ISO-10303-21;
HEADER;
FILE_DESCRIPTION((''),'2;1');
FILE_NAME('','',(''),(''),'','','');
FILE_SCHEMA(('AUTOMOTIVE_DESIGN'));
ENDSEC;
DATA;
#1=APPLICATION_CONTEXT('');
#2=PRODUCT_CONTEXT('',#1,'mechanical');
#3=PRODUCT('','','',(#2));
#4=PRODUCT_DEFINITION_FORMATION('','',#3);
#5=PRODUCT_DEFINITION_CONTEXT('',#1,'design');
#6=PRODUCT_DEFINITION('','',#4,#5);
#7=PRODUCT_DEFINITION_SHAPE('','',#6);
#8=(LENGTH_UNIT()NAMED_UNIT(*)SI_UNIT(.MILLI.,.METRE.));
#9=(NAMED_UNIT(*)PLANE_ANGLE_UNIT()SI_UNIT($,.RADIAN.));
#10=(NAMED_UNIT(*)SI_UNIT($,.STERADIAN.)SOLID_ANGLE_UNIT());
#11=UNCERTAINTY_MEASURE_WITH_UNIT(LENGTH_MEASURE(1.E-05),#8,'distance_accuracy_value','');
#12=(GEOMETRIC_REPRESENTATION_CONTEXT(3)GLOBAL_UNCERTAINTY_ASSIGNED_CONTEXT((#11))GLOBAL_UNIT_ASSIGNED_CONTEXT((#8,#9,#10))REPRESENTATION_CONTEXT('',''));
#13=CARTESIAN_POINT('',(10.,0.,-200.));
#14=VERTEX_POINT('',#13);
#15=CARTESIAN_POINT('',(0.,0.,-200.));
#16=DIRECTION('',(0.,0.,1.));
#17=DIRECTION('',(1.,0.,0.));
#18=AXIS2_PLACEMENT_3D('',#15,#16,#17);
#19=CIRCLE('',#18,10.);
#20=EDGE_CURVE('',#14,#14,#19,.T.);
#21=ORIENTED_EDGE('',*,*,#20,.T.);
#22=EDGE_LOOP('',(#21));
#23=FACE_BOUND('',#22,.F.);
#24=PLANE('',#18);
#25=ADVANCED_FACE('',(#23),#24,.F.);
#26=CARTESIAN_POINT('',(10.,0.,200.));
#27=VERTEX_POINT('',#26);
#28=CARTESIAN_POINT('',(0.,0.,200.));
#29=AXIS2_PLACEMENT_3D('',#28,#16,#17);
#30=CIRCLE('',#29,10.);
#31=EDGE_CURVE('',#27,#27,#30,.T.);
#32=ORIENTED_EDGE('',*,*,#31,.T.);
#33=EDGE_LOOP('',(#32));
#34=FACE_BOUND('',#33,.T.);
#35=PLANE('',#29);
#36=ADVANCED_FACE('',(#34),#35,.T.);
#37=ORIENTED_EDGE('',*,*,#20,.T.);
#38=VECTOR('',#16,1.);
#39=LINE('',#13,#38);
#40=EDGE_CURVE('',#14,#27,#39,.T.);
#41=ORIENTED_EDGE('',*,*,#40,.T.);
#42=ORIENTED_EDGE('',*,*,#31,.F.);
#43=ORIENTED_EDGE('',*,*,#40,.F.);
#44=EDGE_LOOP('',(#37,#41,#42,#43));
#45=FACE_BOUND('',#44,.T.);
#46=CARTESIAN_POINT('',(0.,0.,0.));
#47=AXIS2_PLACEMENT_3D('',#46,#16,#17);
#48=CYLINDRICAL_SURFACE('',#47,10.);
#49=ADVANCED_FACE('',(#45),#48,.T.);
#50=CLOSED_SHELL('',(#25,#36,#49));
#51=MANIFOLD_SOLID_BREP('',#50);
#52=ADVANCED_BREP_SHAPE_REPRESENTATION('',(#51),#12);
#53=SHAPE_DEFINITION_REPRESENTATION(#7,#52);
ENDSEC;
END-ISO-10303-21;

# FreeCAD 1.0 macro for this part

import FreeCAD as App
import Part
import Sketcher

doc = App.newDocument("Part")
body = doc.addObject("PartDesign::Body", "Body")

# Sketch on XY plane
sketch1 = body.newObject("Sketcher::SketchObject", "Sketch")
sketch1.AttachmentSupport = (doc.getObject("XY_Plane"), [""])
sketch1.MapMode = "FlatFace"
sketch1.addGeometry(Part.Circle(App.Vector(0, 0, 0), App.Vector(0, 0, 1), 10), False)
sketch1.addConstraint(Sketcher.Constraint("Coincident", 0, 3, -1, 1))
sketch1.addConstraint(Sketcher.Constraint("Diameter", 0, 20.0))
pad1 = body.newObject("PartDesign::Pad", "Pad")
pad1.Profile = sketch1
pad1.Length = 400
pad1.Midplane = True

doc.recompute()
